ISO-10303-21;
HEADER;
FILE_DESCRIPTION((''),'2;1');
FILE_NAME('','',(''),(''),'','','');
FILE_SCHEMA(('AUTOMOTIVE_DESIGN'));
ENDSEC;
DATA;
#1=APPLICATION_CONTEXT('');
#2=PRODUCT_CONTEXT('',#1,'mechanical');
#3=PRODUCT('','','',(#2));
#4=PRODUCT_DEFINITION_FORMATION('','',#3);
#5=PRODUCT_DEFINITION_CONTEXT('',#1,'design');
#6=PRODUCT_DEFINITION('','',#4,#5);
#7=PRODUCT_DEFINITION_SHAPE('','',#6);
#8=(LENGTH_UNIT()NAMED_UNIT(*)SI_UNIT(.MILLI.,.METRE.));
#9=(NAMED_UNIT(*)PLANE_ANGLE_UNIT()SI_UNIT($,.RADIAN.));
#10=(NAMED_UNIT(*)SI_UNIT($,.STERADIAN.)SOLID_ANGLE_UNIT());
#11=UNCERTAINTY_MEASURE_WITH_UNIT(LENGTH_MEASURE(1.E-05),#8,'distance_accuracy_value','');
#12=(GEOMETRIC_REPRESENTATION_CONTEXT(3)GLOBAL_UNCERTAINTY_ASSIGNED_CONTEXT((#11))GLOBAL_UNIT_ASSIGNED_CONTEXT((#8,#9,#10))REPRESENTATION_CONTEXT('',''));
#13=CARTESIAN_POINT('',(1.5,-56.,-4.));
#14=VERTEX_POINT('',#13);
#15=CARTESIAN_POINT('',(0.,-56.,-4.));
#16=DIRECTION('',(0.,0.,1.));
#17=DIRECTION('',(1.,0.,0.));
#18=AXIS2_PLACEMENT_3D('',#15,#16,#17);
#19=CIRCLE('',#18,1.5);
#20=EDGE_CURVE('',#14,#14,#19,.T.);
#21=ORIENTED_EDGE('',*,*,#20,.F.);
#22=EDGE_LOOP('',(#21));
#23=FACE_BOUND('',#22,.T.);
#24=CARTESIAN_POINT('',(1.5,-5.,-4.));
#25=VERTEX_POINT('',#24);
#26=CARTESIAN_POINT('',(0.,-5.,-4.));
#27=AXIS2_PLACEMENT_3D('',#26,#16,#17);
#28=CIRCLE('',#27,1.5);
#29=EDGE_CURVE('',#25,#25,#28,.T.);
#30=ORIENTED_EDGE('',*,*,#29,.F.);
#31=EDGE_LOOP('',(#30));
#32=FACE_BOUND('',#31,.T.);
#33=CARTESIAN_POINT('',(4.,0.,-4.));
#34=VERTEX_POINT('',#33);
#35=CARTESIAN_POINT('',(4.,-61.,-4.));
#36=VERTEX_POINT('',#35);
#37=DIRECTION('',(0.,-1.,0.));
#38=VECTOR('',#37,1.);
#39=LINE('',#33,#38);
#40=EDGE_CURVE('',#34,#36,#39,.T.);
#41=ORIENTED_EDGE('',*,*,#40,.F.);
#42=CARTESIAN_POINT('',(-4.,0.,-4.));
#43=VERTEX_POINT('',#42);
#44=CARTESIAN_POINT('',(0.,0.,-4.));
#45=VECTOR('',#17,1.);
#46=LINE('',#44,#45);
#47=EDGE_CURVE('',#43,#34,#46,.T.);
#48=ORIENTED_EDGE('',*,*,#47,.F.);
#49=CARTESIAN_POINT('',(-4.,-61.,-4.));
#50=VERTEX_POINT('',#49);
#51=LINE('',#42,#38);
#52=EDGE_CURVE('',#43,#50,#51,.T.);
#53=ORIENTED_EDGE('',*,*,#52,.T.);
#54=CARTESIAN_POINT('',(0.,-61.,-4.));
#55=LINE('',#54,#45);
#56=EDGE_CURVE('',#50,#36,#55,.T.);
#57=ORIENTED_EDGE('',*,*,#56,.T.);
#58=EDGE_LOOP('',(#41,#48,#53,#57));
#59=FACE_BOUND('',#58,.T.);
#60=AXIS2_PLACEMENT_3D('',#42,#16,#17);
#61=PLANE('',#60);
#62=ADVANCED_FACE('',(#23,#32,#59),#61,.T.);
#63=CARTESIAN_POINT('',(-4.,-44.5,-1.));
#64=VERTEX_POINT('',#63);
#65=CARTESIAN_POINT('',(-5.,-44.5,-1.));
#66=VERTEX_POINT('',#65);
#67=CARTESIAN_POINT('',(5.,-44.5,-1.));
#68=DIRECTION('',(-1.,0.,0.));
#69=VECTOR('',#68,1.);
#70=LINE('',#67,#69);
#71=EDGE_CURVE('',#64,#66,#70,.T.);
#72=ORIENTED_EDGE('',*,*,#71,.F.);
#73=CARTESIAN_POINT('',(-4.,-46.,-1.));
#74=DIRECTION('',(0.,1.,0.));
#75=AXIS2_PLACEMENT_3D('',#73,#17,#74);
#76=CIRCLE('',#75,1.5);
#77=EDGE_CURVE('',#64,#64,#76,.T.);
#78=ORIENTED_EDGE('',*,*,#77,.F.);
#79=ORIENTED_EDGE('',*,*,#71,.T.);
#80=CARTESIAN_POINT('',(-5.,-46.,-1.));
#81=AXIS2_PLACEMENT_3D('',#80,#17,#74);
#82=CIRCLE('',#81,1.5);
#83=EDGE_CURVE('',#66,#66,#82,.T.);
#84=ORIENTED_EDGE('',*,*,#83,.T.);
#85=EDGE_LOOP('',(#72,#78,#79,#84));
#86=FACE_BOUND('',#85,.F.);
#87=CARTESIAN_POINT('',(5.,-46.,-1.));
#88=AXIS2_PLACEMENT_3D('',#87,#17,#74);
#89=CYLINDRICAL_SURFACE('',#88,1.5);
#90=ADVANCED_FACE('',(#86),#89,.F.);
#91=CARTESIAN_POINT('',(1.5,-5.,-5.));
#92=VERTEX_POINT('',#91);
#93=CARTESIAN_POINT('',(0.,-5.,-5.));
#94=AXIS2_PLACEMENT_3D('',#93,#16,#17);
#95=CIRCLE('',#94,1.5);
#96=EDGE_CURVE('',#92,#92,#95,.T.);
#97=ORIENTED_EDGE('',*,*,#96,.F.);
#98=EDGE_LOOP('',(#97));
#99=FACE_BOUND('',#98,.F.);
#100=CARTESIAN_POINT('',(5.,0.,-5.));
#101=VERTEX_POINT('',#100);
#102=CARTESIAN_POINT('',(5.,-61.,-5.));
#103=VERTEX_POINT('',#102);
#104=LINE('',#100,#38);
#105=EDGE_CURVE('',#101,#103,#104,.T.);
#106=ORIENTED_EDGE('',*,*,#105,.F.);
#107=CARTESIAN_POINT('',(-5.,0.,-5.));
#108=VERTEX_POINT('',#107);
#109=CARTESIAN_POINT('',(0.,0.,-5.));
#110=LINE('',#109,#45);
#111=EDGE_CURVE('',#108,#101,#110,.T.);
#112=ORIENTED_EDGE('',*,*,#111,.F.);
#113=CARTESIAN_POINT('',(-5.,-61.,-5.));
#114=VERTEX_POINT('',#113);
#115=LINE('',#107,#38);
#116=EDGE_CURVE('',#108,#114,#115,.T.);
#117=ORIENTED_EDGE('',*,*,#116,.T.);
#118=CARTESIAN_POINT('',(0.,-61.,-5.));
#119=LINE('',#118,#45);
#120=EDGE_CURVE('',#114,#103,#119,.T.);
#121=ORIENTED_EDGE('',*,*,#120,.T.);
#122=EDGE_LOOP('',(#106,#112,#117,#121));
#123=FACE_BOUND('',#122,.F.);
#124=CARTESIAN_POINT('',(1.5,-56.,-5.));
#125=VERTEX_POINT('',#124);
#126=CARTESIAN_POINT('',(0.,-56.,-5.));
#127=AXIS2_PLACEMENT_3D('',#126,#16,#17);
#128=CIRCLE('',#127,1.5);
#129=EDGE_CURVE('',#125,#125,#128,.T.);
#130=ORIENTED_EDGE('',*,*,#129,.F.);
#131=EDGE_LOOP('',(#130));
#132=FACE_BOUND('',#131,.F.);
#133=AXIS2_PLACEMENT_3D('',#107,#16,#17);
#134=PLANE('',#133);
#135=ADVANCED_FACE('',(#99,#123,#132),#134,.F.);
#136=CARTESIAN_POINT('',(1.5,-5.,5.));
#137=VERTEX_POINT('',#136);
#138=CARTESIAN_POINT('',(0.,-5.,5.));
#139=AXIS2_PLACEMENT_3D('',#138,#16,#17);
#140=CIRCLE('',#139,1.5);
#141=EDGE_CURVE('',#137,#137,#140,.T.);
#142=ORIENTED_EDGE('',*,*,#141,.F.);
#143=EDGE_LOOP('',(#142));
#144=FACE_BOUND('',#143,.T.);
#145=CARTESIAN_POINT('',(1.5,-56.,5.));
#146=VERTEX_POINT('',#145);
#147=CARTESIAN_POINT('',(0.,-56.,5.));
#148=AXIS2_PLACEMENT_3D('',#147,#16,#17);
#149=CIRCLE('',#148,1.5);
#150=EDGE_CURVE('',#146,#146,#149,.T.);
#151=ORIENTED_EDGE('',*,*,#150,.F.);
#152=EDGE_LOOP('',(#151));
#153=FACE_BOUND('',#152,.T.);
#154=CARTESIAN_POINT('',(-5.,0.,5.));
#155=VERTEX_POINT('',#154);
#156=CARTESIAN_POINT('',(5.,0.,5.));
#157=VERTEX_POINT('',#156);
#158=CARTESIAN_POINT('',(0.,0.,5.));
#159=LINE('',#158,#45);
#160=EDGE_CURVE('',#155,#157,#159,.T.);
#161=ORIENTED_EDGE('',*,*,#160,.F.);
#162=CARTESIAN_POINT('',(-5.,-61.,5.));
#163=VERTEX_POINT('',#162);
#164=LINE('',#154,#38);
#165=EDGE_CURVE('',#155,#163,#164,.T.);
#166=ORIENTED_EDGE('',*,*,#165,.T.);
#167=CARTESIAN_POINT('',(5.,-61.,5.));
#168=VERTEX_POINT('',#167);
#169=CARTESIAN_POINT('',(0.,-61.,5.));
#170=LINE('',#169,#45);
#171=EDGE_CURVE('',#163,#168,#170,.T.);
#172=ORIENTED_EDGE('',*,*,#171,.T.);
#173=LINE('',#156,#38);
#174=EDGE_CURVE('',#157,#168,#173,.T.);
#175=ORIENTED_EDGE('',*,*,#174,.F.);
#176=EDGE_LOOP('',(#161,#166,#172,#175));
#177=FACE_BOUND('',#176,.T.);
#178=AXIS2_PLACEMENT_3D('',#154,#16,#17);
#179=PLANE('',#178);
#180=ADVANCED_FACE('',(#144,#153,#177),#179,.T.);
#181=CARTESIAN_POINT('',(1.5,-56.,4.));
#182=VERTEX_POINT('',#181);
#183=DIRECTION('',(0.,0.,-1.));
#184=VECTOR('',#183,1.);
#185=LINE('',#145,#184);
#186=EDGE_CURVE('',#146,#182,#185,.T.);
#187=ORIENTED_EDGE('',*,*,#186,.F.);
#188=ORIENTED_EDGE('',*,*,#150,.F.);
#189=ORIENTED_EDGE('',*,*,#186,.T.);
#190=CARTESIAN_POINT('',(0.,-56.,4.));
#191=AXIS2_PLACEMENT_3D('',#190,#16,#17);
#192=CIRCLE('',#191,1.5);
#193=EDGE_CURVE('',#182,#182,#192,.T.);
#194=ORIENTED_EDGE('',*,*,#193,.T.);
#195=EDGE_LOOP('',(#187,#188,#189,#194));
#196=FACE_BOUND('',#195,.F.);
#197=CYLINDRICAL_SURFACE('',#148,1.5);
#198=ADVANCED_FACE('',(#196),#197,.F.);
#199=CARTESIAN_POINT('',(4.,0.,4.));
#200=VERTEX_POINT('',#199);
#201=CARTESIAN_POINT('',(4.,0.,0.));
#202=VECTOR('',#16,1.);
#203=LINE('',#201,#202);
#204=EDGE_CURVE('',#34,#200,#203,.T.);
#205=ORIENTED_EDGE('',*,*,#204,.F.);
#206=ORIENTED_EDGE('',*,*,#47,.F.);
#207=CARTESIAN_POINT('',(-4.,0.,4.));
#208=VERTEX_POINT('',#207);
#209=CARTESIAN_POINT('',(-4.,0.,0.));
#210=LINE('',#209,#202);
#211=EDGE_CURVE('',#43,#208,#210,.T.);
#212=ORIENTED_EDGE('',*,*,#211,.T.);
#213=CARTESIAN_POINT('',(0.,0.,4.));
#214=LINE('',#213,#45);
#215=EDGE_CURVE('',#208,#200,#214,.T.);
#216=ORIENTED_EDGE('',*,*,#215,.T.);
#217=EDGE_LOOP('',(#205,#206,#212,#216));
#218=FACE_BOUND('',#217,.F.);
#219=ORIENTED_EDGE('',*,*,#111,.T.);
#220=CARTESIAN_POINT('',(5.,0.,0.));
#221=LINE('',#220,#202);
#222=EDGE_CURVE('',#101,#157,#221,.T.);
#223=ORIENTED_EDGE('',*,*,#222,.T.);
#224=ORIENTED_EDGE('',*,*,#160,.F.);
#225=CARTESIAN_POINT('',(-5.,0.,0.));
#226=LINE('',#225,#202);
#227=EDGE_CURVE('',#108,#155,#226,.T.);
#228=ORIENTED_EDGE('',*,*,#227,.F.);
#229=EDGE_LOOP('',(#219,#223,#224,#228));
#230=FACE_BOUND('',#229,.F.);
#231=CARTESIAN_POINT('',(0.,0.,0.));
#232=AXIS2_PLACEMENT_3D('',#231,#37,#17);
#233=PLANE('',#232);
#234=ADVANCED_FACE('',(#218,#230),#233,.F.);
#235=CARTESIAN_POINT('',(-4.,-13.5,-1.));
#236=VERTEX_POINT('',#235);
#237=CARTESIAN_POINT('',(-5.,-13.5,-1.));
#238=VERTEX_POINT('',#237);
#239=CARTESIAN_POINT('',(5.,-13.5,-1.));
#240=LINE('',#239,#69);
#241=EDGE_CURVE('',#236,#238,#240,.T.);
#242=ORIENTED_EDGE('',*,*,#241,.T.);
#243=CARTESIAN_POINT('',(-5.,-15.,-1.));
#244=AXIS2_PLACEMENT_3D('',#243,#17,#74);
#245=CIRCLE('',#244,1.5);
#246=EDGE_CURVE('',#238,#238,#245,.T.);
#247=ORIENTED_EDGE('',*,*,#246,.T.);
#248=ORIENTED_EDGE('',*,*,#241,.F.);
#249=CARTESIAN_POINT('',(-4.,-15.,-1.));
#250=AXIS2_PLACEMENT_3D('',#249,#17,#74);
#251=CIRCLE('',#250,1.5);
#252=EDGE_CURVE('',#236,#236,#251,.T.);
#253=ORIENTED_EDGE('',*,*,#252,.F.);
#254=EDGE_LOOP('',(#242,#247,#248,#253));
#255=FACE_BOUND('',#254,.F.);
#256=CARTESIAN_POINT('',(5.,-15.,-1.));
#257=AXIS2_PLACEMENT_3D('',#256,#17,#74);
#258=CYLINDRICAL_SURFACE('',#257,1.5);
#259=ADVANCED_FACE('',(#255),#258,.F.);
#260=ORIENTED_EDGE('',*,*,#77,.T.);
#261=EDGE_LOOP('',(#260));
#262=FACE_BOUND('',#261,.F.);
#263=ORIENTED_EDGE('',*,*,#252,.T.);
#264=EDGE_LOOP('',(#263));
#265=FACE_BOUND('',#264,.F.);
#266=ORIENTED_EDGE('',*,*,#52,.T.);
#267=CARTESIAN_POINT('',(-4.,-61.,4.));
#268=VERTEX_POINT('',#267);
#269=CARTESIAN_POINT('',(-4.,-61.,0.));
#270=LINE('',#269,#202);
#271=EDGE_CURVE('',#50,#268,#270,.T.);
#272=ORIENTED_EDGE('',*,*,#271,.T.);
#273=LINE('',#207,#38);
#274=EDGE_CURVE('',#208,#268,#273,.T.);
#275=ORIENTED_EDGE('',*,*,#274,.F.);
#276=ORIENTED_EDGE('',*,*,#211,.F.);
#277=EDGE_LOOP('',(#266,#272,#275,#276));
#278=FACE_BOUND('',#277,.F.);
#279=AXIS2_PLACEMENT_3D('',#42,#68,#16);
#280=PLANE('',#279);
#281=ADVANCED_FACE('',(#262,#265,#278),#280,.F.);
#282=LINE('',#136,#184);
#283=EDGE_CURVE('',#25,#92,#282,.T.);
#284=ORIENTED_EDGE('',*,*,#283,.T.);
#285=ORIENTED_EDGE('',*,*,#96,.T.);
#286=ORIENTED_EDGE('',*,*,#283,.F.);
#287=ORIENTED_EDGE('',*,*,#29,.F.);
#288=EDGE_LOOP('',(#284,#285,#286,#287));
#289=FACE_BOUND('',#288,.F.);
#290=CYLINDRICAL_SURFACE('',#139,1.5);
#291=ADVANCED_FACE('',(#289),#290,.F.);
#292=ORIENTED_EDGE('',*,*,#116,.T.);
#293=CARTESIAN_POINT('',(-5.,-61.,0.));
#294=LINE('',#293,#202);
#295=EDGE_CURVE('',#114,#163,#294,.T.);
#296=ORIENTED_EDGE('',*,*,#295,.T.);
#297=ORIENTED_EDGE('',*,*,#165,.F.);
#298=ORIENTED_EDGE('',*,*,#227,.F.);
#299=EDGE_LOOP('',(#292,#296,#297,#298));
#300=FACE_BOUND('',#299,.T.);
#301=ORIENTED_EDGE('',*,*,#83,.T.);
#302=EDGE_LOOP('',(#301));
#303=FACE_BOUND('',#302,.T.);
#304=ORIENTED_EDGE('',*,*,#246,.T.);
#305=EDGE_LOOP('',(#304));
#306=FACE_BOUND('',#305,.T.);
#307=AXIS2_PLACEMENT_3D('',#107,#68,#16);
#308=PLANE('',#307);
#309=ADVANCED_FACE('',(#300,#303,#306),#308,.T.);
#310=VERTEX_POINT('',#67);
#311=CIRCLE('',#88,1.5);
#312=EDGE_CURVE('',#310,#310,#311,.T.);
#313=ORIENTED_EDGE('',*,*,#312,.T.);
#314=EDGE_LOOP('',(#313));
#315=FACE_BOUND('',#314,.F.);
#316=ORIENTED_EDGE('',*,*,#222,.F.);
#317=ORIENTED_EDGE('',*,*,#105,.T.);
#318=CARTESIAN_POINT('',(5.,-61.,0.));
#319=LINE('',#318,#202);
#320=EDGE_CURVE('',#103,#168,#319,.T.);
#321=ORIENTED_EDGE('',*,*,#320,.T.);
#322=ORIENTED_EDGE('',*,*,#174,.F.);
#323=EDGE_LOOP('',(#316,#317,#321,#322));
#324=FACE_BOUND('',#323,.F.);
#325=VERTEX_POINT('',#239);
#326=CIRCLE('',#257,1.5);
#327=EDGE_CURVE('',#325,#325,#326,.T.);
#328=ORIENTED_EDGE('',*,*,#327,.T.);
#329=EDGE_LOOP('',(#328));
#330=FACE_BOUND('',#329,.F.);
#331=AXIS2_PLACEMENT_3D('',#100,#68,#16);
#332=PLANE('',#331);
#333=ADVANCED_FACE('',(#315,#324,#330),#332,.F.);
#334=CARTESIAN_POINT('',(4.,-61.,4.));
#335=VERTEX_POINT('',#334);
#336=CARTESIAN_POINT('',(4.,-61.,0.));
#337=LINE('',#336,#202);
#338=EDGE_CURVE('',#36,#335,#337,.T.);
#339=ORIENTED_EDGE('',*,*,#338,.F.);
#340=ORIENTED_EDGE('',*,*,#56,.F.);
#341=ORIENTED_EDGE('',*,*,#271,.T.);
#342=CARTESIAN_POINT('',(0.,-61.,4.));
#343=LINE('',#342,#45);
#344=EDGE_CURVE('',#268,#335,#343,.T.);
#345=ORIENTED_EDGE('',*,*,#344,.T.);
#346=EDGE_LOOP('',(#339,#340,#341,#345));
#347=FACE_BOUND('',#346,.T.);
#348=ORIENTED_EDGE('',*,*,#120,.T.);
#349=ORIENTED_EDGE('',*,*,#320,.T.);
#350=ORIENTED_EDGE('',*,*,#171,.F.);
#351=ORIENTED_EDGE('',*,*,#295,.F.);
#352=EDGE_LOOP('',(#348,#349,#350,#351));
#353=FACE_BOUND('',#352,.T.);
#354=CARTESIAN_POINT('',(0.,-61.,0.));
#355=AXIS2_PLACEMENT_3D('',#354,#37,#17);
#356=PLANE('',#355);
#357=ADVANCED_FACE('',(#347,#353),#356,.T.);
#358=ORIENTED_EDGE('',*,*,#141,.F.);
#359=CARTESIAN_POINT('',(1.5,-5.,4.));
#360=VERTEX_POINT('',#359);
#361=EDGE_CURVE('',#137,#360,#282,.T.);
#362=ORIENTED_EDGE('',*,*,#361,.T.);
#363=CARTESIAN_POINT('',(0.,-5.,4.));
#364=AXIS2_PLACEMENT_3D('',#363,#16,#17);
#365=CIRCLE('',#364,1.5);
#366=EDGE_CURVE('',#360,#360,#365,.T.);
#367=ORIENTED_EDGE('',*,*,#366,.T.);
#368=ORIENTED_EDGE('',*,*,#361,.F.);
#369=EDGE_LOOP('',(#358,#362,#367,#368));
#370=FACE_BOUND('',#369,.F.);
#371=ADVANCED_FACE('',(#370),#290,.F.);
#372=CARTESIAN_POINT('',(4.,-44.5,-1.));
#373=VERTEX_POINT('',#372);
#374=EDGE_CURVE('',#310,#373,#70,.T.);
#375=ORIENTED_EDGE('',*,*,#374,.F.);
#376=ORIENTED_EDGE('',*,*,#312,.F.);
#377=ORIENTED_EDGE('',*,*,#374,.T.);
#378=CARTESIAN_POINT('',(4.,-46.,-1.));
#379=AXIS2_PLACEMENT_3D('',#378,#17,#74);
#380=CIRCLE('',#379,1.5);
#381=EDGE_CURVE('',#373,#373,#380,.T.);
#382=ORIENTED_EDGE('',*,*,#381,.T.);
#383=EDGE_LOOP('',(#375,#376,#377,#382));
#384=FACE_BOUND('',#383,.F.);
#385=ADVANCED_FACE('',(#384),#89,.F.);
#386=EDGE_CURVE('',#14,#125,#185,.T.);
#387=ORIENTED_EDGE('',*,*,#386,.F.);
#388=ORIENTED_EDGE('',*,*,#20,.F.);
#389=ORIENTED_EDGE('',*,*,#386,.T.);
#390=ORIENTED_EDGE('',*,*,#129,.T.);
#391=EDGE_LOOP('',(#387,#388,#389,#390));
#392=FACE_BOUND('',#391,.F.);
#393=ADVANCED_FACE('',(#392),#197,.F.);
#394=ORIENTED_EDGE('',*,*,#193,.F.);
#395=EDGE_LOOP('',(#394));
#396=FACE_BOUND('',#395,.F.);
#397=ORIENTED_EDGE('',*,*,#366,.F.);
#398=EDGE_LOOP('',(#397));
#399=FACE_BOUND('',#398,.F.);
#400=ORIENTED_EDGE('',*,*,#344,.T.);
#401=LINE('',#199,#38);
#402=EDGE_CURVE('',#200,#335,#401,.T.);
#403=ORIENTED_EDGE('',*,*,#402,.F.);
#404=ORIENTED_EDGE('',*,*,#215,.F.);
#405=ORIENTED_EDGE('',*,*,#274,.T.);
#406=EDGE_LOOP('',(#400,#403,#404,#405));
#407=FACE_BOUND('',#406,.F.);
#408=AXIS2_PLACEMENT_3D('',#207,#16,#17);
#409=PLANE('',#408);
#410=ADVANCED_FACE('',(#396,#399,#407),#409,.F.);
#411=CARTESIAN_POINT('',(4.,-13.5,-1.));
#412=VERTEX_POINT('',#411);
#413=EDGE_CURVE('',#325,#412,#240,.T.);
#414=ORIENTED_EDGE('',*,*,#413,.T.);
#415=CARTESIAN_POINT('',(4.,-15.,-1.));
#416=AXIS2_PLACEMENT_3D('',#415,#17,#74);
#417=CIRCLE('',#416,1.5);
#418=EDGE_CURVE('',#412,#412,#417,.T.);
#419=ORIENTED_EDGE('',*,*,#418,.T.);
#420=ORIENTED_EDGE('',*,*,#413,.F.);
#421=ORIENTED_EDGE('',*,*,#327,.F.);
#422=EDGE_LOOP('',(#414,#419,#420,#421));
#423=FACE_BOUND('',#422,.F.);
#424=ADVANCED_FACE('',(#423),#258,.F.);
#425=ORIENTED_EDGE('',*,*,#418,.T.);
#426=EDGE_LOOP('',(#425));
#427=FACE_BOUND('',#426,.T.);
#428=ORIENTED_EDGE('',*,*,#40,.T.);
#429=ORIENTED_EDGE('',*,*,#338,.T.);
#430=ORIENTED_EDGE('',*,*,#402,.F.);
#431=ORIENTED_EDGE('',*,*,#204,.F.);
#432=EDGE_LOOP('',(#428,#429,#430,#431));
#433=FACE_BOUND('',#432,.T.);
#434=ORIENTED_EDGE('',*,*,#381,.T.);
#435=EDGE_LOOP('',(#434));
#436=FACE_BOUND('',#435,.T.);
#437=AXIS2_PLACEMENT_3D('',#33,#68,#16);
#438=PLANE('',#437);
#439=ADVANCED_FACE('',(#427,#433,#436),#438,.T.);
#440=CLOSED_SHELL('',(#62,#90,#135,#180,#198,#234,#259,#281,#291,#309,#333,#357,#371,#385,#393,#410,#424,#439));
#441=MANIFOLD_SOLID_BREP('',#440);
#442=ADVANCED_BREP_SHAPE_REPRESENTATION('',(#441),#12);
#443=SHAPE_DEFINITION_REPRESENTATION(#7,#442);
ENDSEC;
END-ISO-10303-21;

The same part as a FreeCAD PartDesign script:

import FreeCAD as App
import Part
import Sketcher
from FreeCAD import Vector

doc = App.newDocument("Part")
params = doc.addObject("Spreadsheet::Sheet", "Params")
for row, (alias, value) in enumerate([
    ("sketch1_width", "10 mm"),
    ("sketch1_width2", "8 mm"),
    ("pad1_length", "61 mm"),
    ("sketch2_diameter", "3 mm"),
    ("pocket1_length", "25 mm"),
    ("sketch3_diameter", "3 mm"),
    ("pocket2_length", "25 mm"),
], start=1):
    params.set(f"A{row}", alias)
    params.set(f"B{row}", "=" + value)
    params.setAlias(f"B{row}", alias)

body = doc.addObject("PartDesign::Body", "Body")

# Sketch on XZ plane
sketch1 = body.newObject("Sketcher::SketchObject", "Sketch")
sketch1.AttachmentSupport = (doc.getObject("XZ_Plane"), [""])
sketch1.MapMode = "FlatFace"
sketch1.addGeometry([
    Part.LineSegment(Vector(-5, 5, 0), Vector(-5, -5, 0)),  # 0
    Part.LineSegment(Vector(-5, -5, 0), Vector(5, -5, 0)),  # 1
    Part.LineSegment(Vector(5, -5, 0), Vector(5, 5, 0)),  # 2
    Part.LineSegment(Vector(5, 5, 0), Vector(-5, 5, 0)),  # 3
    Part.LineSegment(Vector(4, -4, 0), Vector(-4, -4, 0)),  # 4
    Part.LineSegment(Vector(-4, -4, 0), Vector(-4, 4, 0)),  # 5
    Part.LineSegment(Vector(-4, 4, 0), Vector(4, 4, 0)),  # 6
    Part.LineSegment(Vector(4, 4, 0), Vector(4, -4, 0)),  # 7
], False)
sketch1.addConstraint([
    Sketcher.Constraint("Coincident", 0, 2, 1, 1),
    Sketcher.Constraint("Coincident", 1, 2, 2, 1),
    Sketcher.Constraint("Coincident", 2, 2, 3, 1),
    Sketcher.Constraint("Coincident", 3, 2, 0, 1),
    Sketcher.Constraint("Coincident", 4, 2, 5, 1),
    Sketcher.Constraint("Coincident", 5, 2, 6, 1),
    Sketcher.Constraint("Coincident", 6, 2, 7, 1),
    Sketcher.Constraint("Coincident", 7, 2, 4, 1),
    Sketcher.Constraint("Vertical", 0),
    Sketcher.Constraint("Horizontal", 1),
    Sketcher.Constraint("Vertical", 2),
    Sketcher.Constraint("Horizontal", 3),
    Sketcher.Constraint("Horizontal", 4),
    Sketcher.Constraint("Vertical", 5),
    Sketcher.Constraint("Horizontal", 6),
    Sketcher.Constraint("Vertical", 7),
    Sketcher.Constraint("Symmetric", 0, 2, 2, 2, -1, 1),
    Sketcher.Constraint("Symmetric", 4, 2, 6, 2, -1, 1),
    Sketcher.Constraint("Equal", 3, 0),
    Sketcher.Constraint("Equal", 6, 5),
    Sketcher.Constraint("DistanceX", 1, 1, 1, 2, 10.0),
    Sketcher.Constraint("DistanceX", 4, 2, 4, 1, 8.0),
])
sketch1.setExpression("Constraints[20]", "Params.sketch1_width")
sketch1.setExpression("Constraints[21]", "Params.sketch1_width2")
pad1 = body.newObject("PartDesign::Pad", "Pad")
pad1.Profile = sketch1
pad1.setExpression("Length", "Params.pad1_length")

# Sketch on XY plane
sketch2 = body.newObject("Sketcher::SketchObject", "Sketch001")
sketch2.AttachmentSupport = (doc.getObject("XY_Plane"), [""])
sketch2.MapMode = "FlatFace"
sketch2.AttachmentOffset = App.Placement(Vector(0, 0, 5), App.Rotation())
sketch2.addGeometry([
    Part.Circle(Vector(0, -5, 0), Vector(0, 0, 1), 1.5),
    Part.Circle(Vector(0, -56, 0), Vector(0, 0, 1), 1.5),
], False)
sketch2.addConstraint([
    Sketcher.Constraint("Equal", 0, 1),
    Sketcher.Constraint("PointOnObject", 0, 3, -2),
    Sketcher.Constraint("PointOnObject", 1, 3, -2),
    Sketcher.Constraint("Diameter", 0, 3.0),
    Sketcher.Constraint("DistanceY", 0, 3, -1, 1, 5.0),
    Sketcher.Constraint("DistanceY", 1, 3, -1, 1, 56.0),
])
sketch2.setExpression("Constraints[3]", "Params.sketch2_diameter")
pocket1 = body.newObject("PartDesign::Pocket", "Pocket")
pocket1.Profile = sketch2
pocket1.setExpression("Length", "Params.pocket1_length")

# Sketch on YZ plane
sketch3 = body.newObject("Sketcher::SketchObject", "Sketch002")
sketch3.AttachmentSupport = (doc.getObject("YZ_Plane"), [""])
sketch3.MapMode = "FlatFace"
sketch3.AttachmentOffset = App.Placement(Vector(0, 0, 5), App.Rotation())
sketch3.addGeometry([
    Part.Circle(Vector(-15, -1, 0), Vector(0, 0, 1), 1.5),
    Part.Circle(Vector(-46, -1, 0), Vector(0, 0, 1), 1.5),
], False)
sketch3.addConstraint([
    Sketcher.Constraint("Equal", 0, 1),
    Sketcher.Constraint("Horizontal", 0, 3, 1, 3),
    Sketcher.Constraint("Diameter", 0, 3.0),
    Sketcher.Constraint("DistanceX", 0, 3, -1, 1, 15.0),
    Sketcher.Constraint("DistanceY", 0, 3, -1, 1, 1.0),
    Sketcher.Constraint("DistanceX", 1, 3, -1, 1, 46.0),
])
sketch3.setExpression("Constraints[2]", "Params.sketch3_diameter")
pocket2 = body.newObject("PartDesign::Pocket", "Pocket001")
pocket2.Profile = sketch3
pocket2.setExpression("Length", "Params.pocket2_length")

doc.recompute()
